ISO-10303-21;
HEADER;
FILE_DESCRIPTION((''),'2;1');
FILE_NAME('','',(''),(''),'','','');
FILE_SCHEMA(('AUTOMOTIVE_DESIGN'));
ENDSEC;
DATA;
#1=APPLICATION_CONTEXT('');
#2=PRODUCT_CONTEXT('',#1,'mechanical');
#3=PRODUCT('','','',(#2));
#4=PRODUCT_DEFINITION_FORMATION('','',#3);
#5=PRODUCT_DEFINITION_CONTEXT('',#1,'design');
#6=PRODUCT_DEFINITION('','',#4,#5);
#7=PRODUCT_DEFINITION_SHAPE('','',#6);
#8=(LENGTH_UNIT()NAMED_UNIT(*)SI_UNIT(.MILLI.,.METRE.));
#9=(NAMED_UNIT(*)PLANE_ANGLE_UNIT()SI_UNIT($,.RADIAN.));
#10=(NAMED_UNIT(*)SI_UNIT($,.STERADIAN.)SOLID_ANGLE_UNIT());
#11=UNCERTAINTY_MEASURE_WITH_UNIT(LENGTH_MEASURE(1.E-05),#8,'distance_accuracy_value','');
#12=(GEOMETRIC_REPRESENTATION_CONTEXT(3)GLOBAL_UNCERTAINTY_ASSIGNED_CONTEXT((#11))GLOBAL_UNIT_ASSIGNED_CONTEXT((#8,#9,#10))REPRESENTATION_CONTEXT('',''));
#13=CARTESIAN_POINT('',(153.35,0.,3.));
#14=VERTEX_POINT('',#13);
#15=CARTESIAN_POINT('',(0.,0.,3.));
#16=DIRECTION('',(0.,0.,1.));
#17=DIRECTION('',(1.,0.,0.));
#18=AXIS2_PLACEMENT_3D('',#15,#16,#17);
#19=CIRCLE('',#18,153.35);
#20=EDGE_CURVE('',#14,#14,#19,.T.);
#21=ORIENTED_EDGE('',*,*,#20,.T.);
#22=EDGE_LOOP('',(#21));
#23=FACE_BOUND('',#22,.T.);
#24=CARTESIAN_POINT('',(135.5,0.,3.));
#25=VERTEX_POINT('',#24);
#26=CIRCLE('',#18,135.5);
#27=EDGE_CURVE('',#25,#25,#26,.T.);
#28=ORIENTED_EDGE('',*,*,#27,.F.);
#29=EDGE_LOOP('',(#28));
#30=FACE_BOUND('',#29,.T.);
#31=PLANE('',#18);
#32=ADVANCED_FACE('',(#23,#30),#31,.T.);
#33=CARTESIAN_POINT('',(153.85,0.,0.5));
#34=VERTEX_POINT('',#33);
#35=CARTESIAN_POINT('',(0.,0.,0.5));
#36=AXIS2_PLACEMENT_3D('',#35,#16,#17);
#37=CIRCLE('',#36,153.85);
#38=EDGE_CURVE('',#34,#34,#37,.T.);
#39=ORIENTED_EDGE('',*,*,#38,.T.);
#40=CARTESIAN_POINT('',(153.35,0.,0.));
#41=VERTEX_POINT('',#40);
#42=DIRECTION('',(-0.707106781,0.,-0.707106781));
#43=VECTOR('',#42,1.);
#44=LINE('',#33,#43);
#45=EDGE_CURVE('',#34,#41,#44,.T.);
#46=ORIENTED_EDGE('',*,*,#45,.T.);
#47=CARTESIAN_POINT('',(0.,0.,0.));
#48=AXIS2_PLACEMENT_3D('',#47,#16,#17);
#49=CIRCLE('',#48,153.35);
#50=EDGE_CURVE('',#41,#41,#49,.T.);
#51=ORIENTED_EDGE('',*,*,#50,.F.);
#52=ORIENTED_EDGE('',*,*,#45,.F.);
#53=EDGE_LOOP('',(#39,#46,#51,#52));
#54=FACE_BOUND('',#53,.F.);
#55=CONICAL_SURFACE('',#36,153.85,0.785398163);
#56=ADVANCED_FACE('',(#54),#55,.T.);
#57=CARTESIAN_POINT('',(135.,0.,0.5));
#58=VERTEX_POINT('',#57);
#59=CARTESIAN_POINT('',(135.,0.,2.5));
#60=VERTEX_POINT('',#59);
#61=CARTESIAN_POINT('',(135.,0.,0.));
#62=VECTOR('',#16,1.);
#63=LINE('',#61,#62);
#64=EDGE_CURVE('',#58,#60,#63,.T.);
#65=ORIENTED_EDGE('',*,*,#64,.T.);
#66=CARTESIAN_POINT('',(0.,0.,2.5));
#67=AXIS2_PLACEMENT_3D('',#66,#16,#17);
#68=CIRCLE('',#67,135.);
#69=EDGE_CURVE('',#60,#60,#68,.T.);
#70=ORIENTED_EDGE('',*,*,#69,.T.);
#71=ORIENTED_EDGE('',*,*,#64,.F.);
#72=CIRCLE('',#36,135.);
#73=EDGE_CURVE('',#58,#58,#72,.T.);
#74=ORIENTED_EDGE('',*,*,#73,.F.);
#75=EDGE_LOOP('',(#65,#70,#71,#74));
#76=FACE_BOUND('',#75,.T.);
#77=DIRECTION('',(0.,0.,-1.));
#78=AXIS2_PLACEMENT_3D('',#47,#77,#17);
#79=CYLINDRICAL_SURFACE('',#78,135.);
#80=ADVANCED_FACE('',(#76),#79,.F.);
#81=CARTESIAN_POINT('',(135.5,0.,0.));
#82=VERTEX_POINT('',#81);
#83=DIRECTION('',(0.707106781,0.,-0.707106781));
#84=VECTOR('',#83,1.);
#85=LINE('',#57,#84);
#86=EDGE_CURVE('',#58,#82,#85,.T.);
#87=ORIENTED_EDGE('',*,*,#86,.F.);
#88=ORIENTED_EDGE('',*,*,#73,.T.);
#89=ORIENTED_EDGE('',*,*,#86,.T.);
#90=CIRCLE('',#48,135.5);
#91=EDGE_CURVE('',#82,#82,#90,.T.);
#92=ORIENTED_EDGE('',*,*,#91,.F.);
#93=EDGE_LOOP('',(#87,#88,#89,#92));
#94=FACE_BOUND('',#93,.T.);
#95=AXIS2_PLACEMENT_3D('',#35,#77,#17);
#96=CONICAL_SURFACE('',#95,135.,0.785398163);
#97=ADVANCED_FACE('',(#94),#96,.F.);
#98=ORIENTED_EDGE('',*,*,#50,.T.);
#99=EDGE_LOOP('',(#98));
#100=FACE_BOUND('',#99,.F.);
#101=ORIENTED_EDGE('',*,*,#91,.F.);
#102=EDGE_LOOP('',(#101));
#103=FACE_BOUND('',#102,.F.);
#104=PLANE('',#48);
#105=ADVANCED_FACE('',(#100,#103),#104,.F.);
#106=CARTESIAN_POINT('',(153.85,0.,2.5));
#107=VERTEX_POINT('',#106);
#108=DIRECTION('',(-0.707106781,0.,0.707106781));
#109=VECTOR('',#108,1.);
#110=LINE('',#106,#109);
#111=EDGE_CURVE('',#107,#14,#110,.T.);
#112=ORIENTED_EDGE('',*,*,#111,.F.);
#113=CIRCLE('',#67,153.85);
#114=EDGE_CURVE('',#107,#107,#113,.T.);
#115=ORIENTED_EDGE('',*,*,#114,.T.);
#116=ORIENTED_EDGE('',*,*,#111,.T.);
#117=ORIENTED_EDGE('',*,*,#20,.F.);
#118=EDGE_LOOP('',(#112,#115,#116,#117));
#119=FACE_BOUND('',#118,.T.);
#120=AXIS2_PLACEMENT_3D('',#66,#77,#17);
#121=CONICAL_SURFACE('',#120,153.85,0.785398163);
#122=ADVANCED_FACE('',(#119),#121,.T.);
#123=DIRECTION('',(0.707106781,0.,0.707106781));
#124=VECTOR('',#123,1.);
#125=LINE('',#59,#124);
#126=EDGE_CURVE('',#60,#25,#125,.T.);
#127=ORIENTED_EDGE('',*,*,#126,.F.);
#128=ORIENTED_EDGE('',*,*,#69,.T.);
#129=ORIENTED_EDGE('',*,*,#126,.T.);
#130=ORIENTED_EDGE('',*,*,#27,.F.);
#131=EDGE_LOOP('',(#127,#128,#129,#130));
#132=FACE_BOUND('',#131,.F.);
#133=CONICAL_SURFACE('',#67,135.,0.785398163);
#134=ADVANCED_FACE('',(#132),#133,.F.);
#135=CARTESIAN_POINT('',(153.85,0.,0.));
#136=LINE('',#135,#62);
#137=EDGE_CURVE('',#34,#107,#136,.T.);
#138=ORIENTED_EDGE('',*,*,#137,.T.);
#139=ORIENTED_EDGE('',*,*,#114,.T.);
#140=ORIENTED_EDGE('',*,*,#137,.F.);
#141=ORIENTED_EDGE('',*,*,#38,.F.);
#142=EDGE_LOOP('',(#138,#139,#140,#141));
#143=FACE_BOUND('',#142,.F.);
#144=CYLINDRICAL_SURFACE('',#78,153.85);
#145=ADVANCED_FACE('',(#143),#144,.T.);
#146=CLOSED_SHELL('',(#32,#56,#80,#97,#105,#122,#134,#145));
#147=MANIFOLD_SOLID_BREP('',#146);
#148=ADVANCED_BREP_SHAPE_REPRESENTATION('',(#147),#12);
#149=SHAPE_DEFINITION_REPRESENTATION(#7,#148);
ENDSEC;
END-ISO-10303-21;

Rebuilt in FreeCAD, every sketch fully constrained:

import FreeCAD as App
import Part
import Sketcher


def edges_at(feature, points):
    """Names of the edges that pass closest to the given points."""
    edges = feature.Shape.Edges
    near = lambda p: min(range(len(edges)), key=lambda i: edges[i].distToShape(Part.Vertex(*p))[0])
    return sorted({f"Edge{near(p) + 1}" for p in points})

doc = App.newDocument("Part")
body = doc.addObject("PartDesign::Body", "Body")

# Sketch on XY plane
sketch1 = doc.addObject("Sketcher::SketchObject", "Sketch")
body.addObject(sketch1)
sketch1.AttachmentSupport = (doc.XY_Plane, [""])
sketch1.MapMode = "FlatFace"
sketch1.addGeometry([
    Part.Circle(App.Vector(0, 0, 0), App.Vector(0, 0, 1), 154),
    Part.Circle(App.Vector(0, 0, 0), App.Vector(0, 0, 1), 135),
], False)
sketch1.addConstraint([
    Sketcher.Constraint("Coincident", 0, 3, -1, 1),
    Sketcher.Constraint("Coincident", 1, 3, -1, 1),
    Sketcher.Constraint("Diameter", 1, 270.0),
    Sketcher.Constraint("Diameter", 0, 307.7),
])
pad1 = doc.addObject("PartDesign::Pad", "Pad")
body.addObject(pad1)
pad1.Profile = sketch1
pad1.Length = 3
doc.recompute()

chamfer = doc.addObject("PartDesign::Chamfer", "Chamfer")
body.addObject(chamfer)
chamfer.Base = (pad1, edges_at(pad1, [
    (-135, 0, 3),
    (-135, 0, 0),
    (-153.85, 0, 3),
    (-153.85, 0, 0),
]))
chamfer.Size = 0.5

doc.recompute()
